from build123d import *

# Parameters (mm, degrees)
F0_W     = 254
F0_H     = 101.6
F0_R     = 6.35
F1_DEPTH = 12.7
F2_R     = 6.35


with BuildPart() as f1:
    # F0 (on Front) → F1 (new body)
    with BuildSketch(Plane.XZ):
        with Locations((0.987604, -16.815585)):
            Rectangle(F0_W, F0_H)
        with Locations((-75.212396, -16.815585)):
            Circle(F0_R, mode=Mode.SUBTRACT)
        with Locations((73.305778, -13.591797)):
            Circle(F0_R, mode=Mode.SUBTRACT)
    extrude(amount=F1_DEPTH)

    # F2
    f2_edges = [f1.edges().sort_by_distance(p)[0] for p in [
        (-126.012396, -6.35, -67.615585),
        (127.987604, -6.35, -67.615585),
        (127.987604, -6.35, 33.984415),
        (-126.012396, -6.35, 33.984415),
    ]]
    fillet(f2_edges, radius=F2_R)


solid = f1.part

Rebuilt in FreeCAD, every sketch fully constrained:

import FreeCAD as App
import Part
import Sketcher
Q = App.Units.Quantity


def edges_at(feature, points):
    """Names of the edges that pass closest to the given points."""
    edges = feature.Shape.Edges
    near = lambda p: min(range(len(edges)), key=lambda i: edges[i].distToShape(Part.Vertex(*p))[0])
    return sorted({f"Edge{near(p) + 1}" for p in points})

doc = App.newDocument("Part")
params = doc.addObject("Spreadsheet::Sheet", "Params")
for row, (alias, value) in enumerate([
    ("sketch1_diameter", "0.5 in"),
    ("sketch1_width", "10 in"),
    ("sketch1_height", "4 in"),
    ("pad1_length", "0.5 in"),
    ("fillet_radius", "0.25 in"),
], start=1):
    params.set(f"A{row}", alias)
    params.set(f"B{row}", "=" + value)
    params.setAlias(f"B{row}", alias)

body = doc.addObject("PartDesign::Body", "Body")

# Sketch on XZ plane
sketch1 = doc.addObject("Sketcher::SketchObject", "Sketch")
body.addObject(sketch1)
sketch1.AttachmentSupport = (doc.XZ_Plane, [""])
sketch1.MapMode = "FlatFace"
sketch1.addGeometry(Part.LineSegment(App.Vector(-126.012396, 33.984415, 0), App.Vector(-126.012396, -67.615585, 0)), False)
sketch1.addGeometry(Part.LineSegment(App.Vector(-126.012396, -67.615585, 0), App.Vector(127.987604, -67.615585, 0)), False)
sketch1.addGeometry(Part.LineSegment(App.Vector(127.987604, -67.615585, 0), App.Vector(127.987604, 33.984415, 0)), False)
sketch1.addGeometry(Part.LineSegment(App.Vector(127.987604, 33.984415, 0), App.Vector(-126.012396, 33.984415, 0)), False)
sketch1.addGeometry(Part.Circle(App.Vector(-75.212396, -16.815585, 0), App.Vector(0, 0, 1), 6.35), False)
sketch1.addGeometry(Part.Circle(App.Vector(73.305778, -13.591797, 0), App.Vector(0, 0, 1), 6.35), False)
sketch1.addConstraint(Sketcher.Constraint("Coincident", 0, 2, 1, 1))
sketch1.addConstraint(Sketcher.Constraint("Coincident", 1, 2, 2, 1))
sketch1.addConstraint(Sketcher.Constraint("Coincident", 2, 2, 3, 1))
sketch1.addConstraint(Sketcher.Constraint("Coincident", 3, 2, 0, 1))
sketch1.addConstraint(Sketcher.Constraint("Vertical", 0))
sketch1.addConstraint(Sketcher.Constraint("Horizontal", 1))
sketch1.addConstraint(Sketcher.Constraint("Vertical", 2))
sketch1.addConstraint(Sketcher.Constraint("Horizontal", 3))
sketch1.addConstraint(Sketcher.Constraint("Equal", 4, 5))
sketch1.addConstraint(Sketcher.Constraint("Diameter", 4, Q("0.5 in")))
sketch1.addConstraint(Sketcher.Constraint("DistanceX", 1, 1, 1, 2, Q("10 in")))
sketch1.addConstraint(Sketcher.Constraint("DistanceY", 0, 2, 0, 1, Q("4 in")))
sketch1.addConstraint(Sketcher.Constraint("DistanceX", 0, 2, 4, 3, Q("2 in")))
sketch1.addConstraint(Sketcher.Constraint("DistanceY", 0, 2, 4, 3, Q("2 in")))
sketch1.addConstraint(Sketcher.Constraint("DistanceX", -1, 1, 5, 3, Q("73.305778 mm")))
sketch1.addConstraint(Sketcher.Constraint("DistanceY", 5, 3, 2, 2, Q("47.576212 mm")))
sketch1.addConstraint(Sketcher.Constraint("DistanceX", 4, 3, -1, 1, Q("75.212396 mm")))
sketch1.addConstraint(Sketcher.Constraint("DistanceY", 4, 3, -1, 1, Q("16.815585 mm")))
sketch1.setExpression("Constraints[9]", "Params.sketch1_diameter")
sketch1.setExpression("Constraints[10]", "Params.sketch1_width")
sketch1.setExpression("Constraints[11]", "Params.sketch1_height")
pad1 = doc.addObject("PartDesign::Pad", "Pad")
body.addObject(pad1)
pad1.Profile = sketch1
pad1.setExpression("Length", "Params.pad1_length")
doc.recompute()

fillet = doc.addObject("PartDesign::Fillet", "Fillet")
body.addObject(fillet)
fillet.Base = (pad1, edges_at(pad1, [
    (-126.012, -6.35, -67.616),
    (127.988, -6.35, -67.616),
    (127.988, -6.35, 33.984),
    (-126.012, -6.35, 33.984),
]))
fillet.setExpression("Radius", "Params.fillet_radius")

doc.recompute()
